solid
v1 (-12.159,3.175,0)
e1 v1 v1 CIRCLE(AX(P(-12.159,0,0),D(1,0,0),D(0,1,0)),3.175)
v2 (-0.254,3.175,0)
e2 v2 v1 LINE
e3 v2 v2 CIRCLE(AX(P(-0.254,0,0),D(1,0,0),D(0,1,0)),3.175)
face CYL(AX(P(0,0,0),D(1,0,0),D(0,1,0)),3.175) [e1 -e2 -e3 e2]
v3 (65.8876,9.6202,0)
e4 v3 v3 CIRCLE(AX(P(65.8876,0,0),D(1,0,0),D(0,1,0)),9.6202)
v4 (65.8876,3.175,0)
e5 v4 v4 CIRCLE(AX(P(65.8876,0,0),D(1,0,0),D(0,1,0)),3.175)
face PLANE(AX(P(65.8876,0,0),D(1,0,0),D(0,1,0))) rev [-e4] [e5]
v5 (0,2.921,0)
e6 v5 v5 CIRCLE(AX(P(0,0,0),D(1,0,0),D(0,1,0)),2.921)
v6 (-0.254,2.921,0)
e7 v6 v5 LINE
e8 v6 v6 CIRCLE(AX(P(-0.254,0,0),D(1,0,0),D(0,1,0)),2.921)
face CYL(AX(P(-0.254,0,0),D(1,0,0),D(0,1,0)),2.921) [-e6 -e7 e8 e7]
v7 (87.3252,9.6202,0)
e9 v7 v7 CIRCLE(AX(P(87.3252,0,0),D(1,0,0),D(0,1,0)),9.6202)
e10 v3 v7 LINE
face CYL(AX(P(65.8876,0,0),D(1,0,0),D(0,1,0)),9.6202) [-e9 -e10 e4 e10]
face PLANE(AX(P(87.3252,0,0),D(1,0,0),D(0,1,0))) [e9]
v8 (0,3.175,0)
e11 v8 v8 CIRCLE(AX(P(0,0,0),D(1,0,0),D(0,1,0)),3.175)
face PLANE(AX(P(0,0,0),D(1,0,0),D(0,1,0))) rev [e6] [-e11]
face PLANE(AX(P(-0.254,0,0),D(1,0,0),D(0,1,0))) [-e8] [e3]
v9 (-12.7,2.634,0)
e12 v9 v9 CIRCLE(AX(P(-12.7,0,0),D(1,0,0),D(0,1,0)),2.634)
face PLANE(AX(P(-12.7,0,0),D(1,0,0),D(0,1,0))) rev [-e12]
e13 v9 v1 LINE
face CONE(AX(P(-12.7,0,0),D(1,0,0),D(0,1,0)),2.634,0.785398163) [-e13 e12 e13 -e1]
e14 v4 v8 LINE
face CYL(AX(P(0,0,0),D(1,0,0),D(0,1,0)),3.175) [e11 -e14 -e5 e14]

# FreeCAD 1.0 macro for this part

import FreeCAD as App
import Part
import Sketcher

V = App.Vector
Q = App.Units.Quantity


def add_polygon(sketch, points):
    """Adds a closed chain of lines whose ends are joined by coincident constraints."""
    first, n = sketch.GeometryCount, len(points)
    for a, b in zip(points, points[1:] + points[:1]):
        sketch.addGeometry(Part.LineSegment(App.Vector(*a, 0), App.Vector(*b, 0)), False)
    for i in range(n):
        sketch.addConstraint(Sketcher.Constraint("Coincident", first + i, 2, first + (i + 1) % n, 1))

doc = App.newDocument("Part")
body = doc.addObject("PartDesign::Body", "Body")

# Sketch on XY plane
sketch1 = body.newObject("Sketcher::SketchObject", "Sketch")
sketch1.AttachmentSupport = (doc.getObject("XY_Plane"), [""])
sketch1.MapMode = "FlatFace"
add_polygon(sketch1, [(0, 0), (87.3, 0), (87.3, 9.6), (65.9, 9.6), (65.9, 3.2), (0, 3.2)])  # lines 0-5
sketch1.addConstraint(Sketcher.Constraint("Horizontal", 0))
sketch1.addConstraint(Sketcher.Constraint("Vertical", 1))
sketch1.addConstraint(Sketcher.Constraint("Horizontal", 2))
sketch1.addConstraint(Sketcher.Constraint("Vertical", 3))
sketch1.addConstraint(Sketcher.Constraint("Horizontal", 4))
sketch1.addConstraint(Sketcher.Constraint("Vertical", 5))
sketch1.addConstraint(Sketcher.Constraint("Coincident", 5, 2, -1, 1))
sketch1.addConstraint(Sketcher.Constraint("DistanceX", 0, 1, 0, 2, Q("3.438 in")))
sketch1.addConstraint(Sketcher.Constraint("DistanceX", 2, 2, 2, 1, Q("0.844 in")))
sketch1.addConstraint(Sketcher.Constraint("DistanceY", 5, 2, 5, 1, Q("0.125 in")))
sketch1.addConstraint(Sketcher.Constraint("DistanceY", 1, 1, 1, 2, 9.6202))
revolution = body.newObject("PartDesign::Revolution", "Revolution")
revolution.Profile = sketch1
revolution.ReferenceAxis = (sketch1, ["H_Axis"])
revolution.Angle = 360

# Sketch on XY plane
sketch2 = body.newObject("Sketcher::SketchObject", "Sketch001")
sketch2.AttachmentSupport = (doc.getObject("XY_Plane"), [""])
sketch2.MapMode = "FlatFace"
add_polygon(sketch2, [(-12.7, 0), (0, 0), (0, 3.2), (-12.2, 3.2), (-12.7, 2.6)])  # lines 0-4
sketch2.addConstraint(Sketcher.Constraint("Horizontal", 0))
sketch2.addConstraint(Sketcher.Constraint("Vertical", 1))
sketch2.addConstraint(Sketcher.Constraint("Horizontal", 2))
sketch2.addConstraint(Sketcher.Constraint("Vertical", 4))
sketch2.addConstraint(Sketcher.Constraint("Coincident", 0, 2, -1, 1))
sketch2.addConstraint(Sketcher.Constraint("DistanceX", 0, 1, 0, 2, Q("0.5 in")))
sketch2.addConstraint(Sketcher.Constraint("Angle", 3, Q("-135 deg")))
sketch2.addConstraint(Sketcher.Constraint("DistanceY", 1, 1, 1, 2, Q("0.125 in")))
sketch2.addConstraint(Sketcher.Constraint("DistanceX", 2, 2, 2, 1, Q("0.4787 in")))
revolution2 = body.newObject("PartDesign::Revolution", "Revolution001")
revolution2.Profile = sketch2
revolution2.ReferenceAxis = (sketch2, ["H_Axis"])
revolution2.Angle = 360

# Sketch on XY plane
sketch3 = body.newObject("Sketcher::SketchObject", "Sketch002")
sketch3.AttachmentSupport = (doc.getObject("XY_Plane"), [""])
sketch3.MapMode = "FlatFace"
add_polygon(sketch3, [(-0.25, 3.43), (-0.25, 2.92), (0, 2.92), (0, 3.43)])  # lines 0-3
sketch3.addConstraint(Sketcher.Constraint("Vertical", 0))
sketch3.addConstraint(Sketcher.Constraint("Horizontal", 1))
sketch3.addConstraint(Sketcher.Constraint("Vertical", 2))
sketch3.addConstraint(Sketcher.Constraint("Horizontal", 3))
sketch3.addConstraint(Sketcher.Constraint("PointOnObject", 1, 2, -2))
sketch3.addConstraint(Sketcher.Constraint("DistanceX", 1, 1, 1, 2, Q("0.01 in")))
sketch3.addConstraint(Sketcher.Constraint("DistanceY", 0, 2, 0, 1, Q("0.02 in")))
sketch3.addConstraint(Sketcher.Constraint("DistanceY", -1, 1, 0, 2, Q("0.115 in")))
groove = body.newObject("PartDesign::Groove", "Groove")
groove.Profile = sketch3
groove.ReferenceAxis = (sketch3, ["H_Axis"])
groove.Angle = 360

doc.recompute()
